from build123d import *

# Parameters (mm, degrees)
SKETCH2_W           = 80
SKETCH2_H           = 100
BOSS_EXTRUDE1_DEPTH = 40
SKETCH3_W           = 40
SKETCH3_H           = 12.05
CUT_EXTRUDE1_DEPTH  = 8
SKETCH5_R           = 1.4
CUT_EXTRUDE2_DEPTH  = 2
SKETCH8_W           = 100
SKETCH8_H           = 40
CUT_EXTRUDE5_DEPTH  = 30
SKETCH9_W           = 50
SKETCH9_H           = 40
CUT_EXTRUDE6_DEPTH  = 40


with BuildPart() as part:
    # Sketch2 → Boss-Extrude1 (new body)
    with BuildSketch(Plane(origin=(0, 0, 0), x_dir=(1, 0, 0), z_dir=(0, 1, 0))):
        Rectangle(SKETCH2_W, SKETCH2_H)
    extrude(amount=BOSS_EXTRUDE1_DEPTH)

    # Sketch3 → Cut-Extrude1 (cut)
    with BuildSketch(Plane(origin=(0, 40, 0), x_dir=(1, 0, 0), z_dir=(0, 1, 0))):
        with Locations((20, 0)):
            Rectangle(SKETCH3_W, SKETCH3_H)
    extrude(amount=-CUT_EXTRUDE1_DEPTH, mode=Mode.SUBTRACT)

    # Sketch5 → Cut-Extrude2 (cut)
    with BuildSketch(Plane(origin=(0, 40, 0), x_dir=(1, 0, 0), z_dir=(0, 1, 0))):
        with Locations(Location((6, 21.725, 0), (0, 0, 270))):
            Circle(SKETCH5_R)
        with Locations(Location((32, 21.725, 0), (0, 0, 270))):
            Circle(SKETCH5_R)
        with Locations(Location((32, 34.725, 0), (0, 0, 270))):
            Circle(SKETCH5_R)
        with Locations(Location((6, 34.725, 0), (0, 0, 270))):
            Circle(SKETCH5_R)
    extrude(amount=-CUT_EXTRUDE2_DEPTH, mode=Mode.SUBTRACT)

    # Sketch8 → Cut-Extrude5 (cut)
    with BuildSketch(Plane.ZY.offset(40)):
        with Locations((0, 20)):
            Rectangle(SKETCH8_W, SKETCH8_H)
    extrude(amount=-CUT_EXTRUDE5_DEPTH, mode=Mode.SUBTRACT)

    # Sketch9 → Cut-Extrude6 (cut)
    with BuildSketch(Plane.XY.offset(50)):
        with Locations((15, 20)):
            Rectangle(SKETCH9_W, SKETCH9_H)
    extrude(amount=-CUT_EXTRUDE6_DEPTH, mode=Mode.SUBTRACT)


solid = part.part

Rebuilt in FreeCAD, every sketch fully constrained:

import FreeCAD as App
import Part
import Sketcher

doc = App.newDocument("Part")
body = doc.addObject("PartDesign::Body", "Body")

sketch1 = body.newObject("Sketcher::SketchObject", "Sketch")
sketch1.AttachmentSupport = (doc.getObject("XZ_Plane"), [""])
sketch1.MapMode = "FlatFace"
sketch1.addGeometry([
    Part.LineSegment(App.Vector(-40, -50, 0), App.Vector(-40, 50, 0)),
    Part.LineSegment(App.Vector(-40, 50, 0), App.Vector(40, 50, 0)),
    Part.LineSegment(App.Vector(40, 50, 0), App.Vector(40, -50, 0)),
    Part.LineSegment(App.Vector(40, -50, 0), App.Vector(-40, -50, 0)),
], False)
sketch1.addConstraint([
    Sketcher.Constraint("Coincident", 0, 2, 1, 1),
    Sketcher.Constraint("Coincident", 1, 2, 2, 1),
    Sketcher.Constraint("Coincident", 2, 2, 3, 1),
    Sketcher.Constraint("Coincident", 3, 2, 0, 1),
    Sketcher.Constraint("Vertical", 0),
    Sketcher.Constraint("Horizontal", 1),
    Sketcher.Constraint("Vertical", 2),
    Sketcher.Constraint("Horizontal", 3),
    Sketcher.Constraint("Symmetric", 0, 2, 2, 2, -1, 1),
    Sketcher.Constraint("DistanceX", 1, 1, 1, 2, 80.0),
    Sketcher.Constraint("DistanceY", 0, 1, 0, 2, 100.0),
])
pad1 = body.newObject("PartDesign::Pad", "Pad")
pad1.Profile = sketch1
pad1.Length = 40
pad1.Reversed = True

sketch2 = body.newObject("Sketcher::SketchObject", "Sketch001")
sketch2.AttachmentSupport = (doc.getObject("XZ_Plane"), [""])
sketch2.MapMode = "FlatFace"
sketch2.AttachmentOffset = App.Placement(App.Vector(0, 0, -40), App.Rotation())
sketch2.addGeometry([
    Part.LineSegment(App.Vector(0, -6, 0), App.Vector(0, 6, 0)),
    Part.LineSegment(App.Vector(0, 6, 0), App.Vector(40, 6, 0)),
    Part.LineSegment(App.Vector(40, 6, 0), App.Vector(40, -6, 0)),
    Part.LineSegment(App.Vector(40, -6, 0), App.Vector(0, -6, 0)),
], False)
sketch2.addConstraint([
    Sketcher.Constraint("Coincident", 0, 2, 1, 1),
    Sketcher.Constraint("Coincident", 1, 2, 2, 1),
    Sketcher.Constraint("Coincident", 2, 2, 3, 1),
    Sketcher.Constraint("Coincident", 3, 2, 0, 1),
    Sketcher.Constraint("Vertical", 0),
    Sketcher.Constraint("Horizontal", 1),
    Sketcher.Constraint("Vertical", 2),
    Sketcher.Constraint("Horizontal", 3),
    Sketcher.Constraint("Symmetric", 0, 2, 3, 2, -1, 1),
    Sketcher.Constraint("DistanceX", 1, 1, 1, 2, 40.0),
    Sketcher.Constraint("DistanceY", 0, 1, 0, 2, 12.05),
])
pocket1 = body.newObject("PartDesign::Pocket", "Pocket")
pocket1.Profile = sketch2
pocket1.Length = 8
pocket1.Reversed = True

sketch3 = body.newObject("Sketcher::SketchObject", "Sketch002")
sketch3.AttachmentSupport = (doc.getObject("XZ_Plane"), [""])
sketch3.MapMode = "FlatFace"
sketch3.AttachmentOffset = App.Placement(App.Vector(0, 0, -40), App.Rotation())
sketch3.addGeometry([
    Part.Circle(App.Vector(6, -21.7, 0), App.Vector(0, 0, 1), 1.4),
    Part.Circle(App.Vector(32, -21.7, 0), App.Vector(0, 0, 1), 1.4),
    Part.Circle(App.Vector(32, -34.7, 0), App.Vector(0, 0, 1), 1.4),
    Part.Circle(App.Vector(6, -34.7, 0), App.Vector(0, 0, 1), 1.4),
], False)
sketch3.addConstraint([
    Sketcher.Constraint("Equal", 0, 1),
    Sketcher.Constraint("Equal", 1, 2),
    Sketcher.Constraint("Equal", 2, 3),
    Sketcher.Constraint("Horizontal", 0, 3, 1, 3),
    Sketcher.Constraint("Horizontal", 2, 3, 3, 3),
    Sketcher.Constraint("Vertical", 1, 3, 2, 3),
    Sketcher.Constraint("Vertical", 0, 3, 3, 3),
    Sketcher.Constraint("Diameter", 0, 2.8),
    Sketcher.Constraint("DistanceX", -1, 1, 0, 3, 6.0),
    Sketcher.Constraint("DistanceX", -1, 1, 1, 3, 32.0),
    Sketcher.Constraint("DistanceY", 2, 3, 1, 3, 13.0),
    Sketcher.Constraint("DistanceY", 0, 3, -1, 1, 21.725),
])
pocket2 = body.newObject("PartDesign::Pocket", "Pocket001")
pocket2.Profile = sketch3
pocket2.Length = 2
pocket2.Reversed = True

sketch4 = body.newObject("Sketcher::SketchObject", "Sketch003")
sketch4.AttachmentSupport = (doc.getObject("YZ_Plane"), [""])
sketch4.MapMode = "FlatFace"
sketch4.AttachmentOffset = App.Placement(App.Vector(0, 0, -40), App.Rotation())
sketch4.addGeometry([
    Part.LineSegment(App.Vector(40, -50, 0), App.Vector(0, -50, 0)),
    Part.LineSegment(App.Vector(0, -50, 0), App.Vector(0, 50, 0)),
    Part.LineSegment(App.Vector(0, 50, 0), App.Vector(40, 50, 0)),
    Part.LineSegment(App.Vector(40, 50, 0), App.Vector(40, -50, 0)),
], False)
sketch4.addConstraint([
    Sketcher.Constraint("Coincident", 0, 2, 1, 1),
    Sketcher.Constraint("Coincident", 1, 2, 2, 1),
    Sketcher.Constraint("Coincident", 2, 2, 3, 1),
    Sketcher.Constraint("Coincident", 3, 2, 0, 1),
    Sketcher.Constraint("Horizontal", 0),
    Sketcher.Constraint("Vertical", 1),
    Sketcher.Constraint("Horizontal", 2),
    Sketcher.Constraint("Vertical", 3),
    Sketcher.Constraint("Symmetric", 0, 2, 1, 2, -1, 1),
    Sketcher.Constraint("DistanceX", 0, 2, 0, 1, 40.0),
    Sketcher.Constraint("DistanceY", 1, 1, 1, 2, 100.0),
])
pocket3 = body.newObject("PartDesign::Pocket", "Pocket002")
pocket3.Profile = sketch4
pocket3.Length = 30
pocket3.Reversed = True

sketch5 = body.newObject("Sketcher::SketchObject", "Sketch004")
sketch5.AttachmentSupport = (doc.getObject("XY_Plane"), [""])
sketch5.MapMode = "FlatFace"
sketch5.AttachmentOffset = App.Placement(App.Vector(0, 0, 50), App.Rotation())
sketch5.addGeometry([
    Part.LineSegment(App.Vector(-10, 40, 0), App.Vector(-10, 0, 0)),
    Part.LineSegment(App.Vector(-10, 0, 0), App.Vector(40, 0, 0)),
    Part.LineSegment(App.Vector(40, 0, 0), App.Vector(40, 40, 0)),
    Part.LineSegment(App.Vector(40, 40, 0), App.Vector(-10, 40, 0)),
], False)
sketch5.addConstraint([
    Sketcher.Constraint("Coincident", 0, 2, 1, 1),
    Sketcher.Constraint("Coincident", 1, 2, 2, 1),
    Sketcher.Constraint("Coincident", 2, 2, 3, 1),
    Sketcher.Constraint("Coincident", 3, 2, 0, 1),
    Sketcher.Constraint("Vertical", 0),
    Sketcher.Constraint("Horizontal", 1),
    Sketcher.Constraint("Vertical", 2),
    Sketcher.Constraint("Horizontal", 3),
    Sketcher.Constraint("PointOnObject", 0, 2, -1),
    Sketcher.Constraint("DistanceX", 1, 1, 1, 2, 50.0),
    Sketcher.Constraint("DistanceY", 0, 2, 0, 1, 40.0),
    Sketcher.Constraint("DistanceX", 0, 2, -1, 1, 10.0),
])
pocket4 = body.newObject("PartDesign::Pocket", "Pocket003")
pocket4.Profile = sketch5
pocket4.Length = 40

doc.recompute()
